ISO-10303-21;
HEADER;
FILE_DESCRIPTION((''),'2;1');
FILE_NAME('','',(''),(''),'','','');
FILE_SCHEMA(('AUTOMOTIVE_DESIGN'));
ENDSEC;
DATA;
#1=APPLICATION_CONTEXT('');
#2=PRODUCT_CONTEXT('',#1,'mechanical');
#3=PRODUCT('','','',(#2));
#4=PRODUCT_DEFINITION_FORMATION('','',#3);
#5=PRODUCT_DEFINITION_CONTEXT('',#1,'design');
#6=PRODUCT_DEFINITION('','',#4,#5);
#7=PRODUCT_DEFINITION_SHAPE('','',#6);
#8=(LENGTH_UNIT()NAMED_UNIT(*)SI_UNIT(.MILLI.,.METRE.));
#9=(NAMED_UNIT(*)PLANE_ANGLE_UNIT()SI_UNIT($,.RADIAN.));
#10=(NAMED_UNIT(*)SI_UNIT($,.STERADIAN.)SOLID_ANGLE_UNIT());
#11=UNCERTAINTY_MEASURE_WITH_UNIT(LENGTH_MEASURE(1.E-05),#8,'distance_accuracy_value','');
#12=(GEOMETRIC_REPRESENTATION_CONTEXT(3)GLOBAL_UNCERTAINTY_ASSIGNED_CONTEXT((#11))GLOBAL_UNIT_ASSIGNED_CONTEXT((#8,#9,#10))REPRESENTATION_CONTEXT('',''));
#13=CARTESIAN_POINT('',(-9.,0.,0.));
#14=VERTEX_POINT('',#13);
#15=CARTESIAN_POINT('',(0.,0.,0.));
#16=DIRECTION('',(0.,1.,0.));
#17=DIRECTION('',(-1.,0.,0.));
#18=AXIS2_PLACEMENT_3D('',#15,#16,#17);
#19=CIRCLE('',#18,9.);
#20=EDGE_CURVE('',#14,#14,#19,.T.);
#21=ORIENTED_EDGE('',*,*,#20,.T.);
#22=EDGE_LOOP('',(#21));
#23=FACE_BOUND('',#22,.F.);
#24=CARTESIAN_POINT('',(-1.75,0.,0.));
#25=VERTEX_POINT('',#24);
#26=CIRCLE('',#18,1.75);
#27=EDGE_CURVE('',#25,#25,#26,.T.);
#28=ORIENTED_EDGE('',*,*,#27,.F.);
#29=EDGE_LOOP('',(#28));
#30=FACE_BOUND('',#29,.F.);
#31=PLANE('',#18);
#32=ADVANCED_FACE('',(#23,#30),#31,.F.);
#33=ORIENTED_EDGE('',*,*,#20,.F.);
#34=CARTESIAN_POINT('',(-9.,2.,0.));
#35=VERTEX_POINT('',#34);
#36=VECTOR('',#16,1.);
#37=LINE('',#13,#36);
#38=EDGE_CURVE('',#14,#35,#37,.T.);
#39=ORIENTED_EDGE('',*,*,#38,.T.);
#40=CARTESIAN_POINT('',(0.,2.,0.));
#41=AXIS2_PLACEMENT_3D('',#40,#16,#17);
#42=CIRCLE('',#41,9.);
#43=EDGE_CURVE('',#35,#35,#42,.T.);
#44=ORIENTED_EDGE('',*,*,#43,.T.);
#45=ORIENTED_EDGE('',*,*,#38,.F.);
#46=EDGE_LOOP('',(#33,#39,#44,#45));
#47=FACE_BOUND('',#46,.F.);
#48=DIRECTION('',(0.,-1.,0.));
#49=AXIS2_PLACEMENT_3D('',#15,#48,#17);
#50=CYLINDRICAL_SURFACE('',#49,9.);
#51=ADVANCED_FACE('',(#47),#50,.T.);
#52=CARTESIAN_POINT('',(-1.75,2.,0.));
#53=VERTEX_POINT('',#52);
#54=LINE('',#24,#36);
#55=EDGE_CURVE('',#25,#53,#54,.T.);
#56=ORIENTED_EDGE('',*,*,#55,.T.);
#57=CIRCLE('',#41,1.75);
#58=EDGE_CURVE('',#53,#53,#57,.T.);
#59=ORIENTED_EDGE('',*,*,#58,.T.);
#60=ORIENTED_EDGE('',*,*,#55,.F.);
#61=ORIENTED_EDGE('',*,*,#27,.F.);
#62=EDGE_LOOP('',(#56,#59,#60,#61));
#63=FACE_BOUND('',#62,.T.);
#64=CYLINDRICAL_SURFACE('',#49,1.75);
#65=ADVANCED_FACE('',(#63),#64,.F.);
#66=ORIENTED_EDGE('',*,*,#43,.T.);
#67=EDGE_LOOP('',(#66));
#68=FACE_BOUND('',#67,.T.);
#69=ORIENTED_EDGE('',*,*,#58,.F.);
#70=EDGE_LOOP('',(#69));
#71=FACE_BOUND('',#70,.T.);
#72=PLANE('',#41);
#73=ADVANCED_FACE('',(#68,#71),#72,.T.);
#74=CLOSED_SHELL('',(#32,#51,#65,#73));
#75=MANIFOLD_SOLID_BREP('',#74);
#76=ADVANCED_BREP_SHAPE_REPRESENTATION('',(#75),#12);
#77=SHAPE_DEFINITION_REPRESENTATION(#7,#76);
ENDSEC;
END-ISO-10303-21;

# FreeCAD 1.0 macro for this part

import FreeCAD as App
import Part
import Sketcher

V = App.Vector
Q = App.Units.Quantity

doc = App.newDocument("Part")
body = doc.addObject("PartDesign::Body", "Body")

# Sketch on XZ plane
sketch1 = body.newObject("Sketcher::SketchObject", "Sketch")
sketch1.AttachmentSupport = (doc.getObject("XZ_Plane"), [""])
sketch1.MapMode = "FlatFace"
sketch1.addGeometry([
    Part.Circle(V(0, 0, 0), V(0, 0, 1), 9),
    Part.Circle(V(0, 0, 0), V(0, 0, 1), 1.8),
], False)
sketch1.addConstraint([
    Sketcher.Constraint("Coincident", 0, 3, -1, 1),
    Sketcher.Constraint("Coincident", 1, 3, -1, 1),
    Sketcher.Constraint("Diameter", 0, Q("18 mm")),
    Sketcher.Constraint("Diameter", 1, Q("3.5 mm")),
])
pad1 = body.newObject("PartDesign::Pad", "Pad")
pad1.Profile = sketch1
pad1.Length = 2
pad1.Reversed = True

doc.recompute()
